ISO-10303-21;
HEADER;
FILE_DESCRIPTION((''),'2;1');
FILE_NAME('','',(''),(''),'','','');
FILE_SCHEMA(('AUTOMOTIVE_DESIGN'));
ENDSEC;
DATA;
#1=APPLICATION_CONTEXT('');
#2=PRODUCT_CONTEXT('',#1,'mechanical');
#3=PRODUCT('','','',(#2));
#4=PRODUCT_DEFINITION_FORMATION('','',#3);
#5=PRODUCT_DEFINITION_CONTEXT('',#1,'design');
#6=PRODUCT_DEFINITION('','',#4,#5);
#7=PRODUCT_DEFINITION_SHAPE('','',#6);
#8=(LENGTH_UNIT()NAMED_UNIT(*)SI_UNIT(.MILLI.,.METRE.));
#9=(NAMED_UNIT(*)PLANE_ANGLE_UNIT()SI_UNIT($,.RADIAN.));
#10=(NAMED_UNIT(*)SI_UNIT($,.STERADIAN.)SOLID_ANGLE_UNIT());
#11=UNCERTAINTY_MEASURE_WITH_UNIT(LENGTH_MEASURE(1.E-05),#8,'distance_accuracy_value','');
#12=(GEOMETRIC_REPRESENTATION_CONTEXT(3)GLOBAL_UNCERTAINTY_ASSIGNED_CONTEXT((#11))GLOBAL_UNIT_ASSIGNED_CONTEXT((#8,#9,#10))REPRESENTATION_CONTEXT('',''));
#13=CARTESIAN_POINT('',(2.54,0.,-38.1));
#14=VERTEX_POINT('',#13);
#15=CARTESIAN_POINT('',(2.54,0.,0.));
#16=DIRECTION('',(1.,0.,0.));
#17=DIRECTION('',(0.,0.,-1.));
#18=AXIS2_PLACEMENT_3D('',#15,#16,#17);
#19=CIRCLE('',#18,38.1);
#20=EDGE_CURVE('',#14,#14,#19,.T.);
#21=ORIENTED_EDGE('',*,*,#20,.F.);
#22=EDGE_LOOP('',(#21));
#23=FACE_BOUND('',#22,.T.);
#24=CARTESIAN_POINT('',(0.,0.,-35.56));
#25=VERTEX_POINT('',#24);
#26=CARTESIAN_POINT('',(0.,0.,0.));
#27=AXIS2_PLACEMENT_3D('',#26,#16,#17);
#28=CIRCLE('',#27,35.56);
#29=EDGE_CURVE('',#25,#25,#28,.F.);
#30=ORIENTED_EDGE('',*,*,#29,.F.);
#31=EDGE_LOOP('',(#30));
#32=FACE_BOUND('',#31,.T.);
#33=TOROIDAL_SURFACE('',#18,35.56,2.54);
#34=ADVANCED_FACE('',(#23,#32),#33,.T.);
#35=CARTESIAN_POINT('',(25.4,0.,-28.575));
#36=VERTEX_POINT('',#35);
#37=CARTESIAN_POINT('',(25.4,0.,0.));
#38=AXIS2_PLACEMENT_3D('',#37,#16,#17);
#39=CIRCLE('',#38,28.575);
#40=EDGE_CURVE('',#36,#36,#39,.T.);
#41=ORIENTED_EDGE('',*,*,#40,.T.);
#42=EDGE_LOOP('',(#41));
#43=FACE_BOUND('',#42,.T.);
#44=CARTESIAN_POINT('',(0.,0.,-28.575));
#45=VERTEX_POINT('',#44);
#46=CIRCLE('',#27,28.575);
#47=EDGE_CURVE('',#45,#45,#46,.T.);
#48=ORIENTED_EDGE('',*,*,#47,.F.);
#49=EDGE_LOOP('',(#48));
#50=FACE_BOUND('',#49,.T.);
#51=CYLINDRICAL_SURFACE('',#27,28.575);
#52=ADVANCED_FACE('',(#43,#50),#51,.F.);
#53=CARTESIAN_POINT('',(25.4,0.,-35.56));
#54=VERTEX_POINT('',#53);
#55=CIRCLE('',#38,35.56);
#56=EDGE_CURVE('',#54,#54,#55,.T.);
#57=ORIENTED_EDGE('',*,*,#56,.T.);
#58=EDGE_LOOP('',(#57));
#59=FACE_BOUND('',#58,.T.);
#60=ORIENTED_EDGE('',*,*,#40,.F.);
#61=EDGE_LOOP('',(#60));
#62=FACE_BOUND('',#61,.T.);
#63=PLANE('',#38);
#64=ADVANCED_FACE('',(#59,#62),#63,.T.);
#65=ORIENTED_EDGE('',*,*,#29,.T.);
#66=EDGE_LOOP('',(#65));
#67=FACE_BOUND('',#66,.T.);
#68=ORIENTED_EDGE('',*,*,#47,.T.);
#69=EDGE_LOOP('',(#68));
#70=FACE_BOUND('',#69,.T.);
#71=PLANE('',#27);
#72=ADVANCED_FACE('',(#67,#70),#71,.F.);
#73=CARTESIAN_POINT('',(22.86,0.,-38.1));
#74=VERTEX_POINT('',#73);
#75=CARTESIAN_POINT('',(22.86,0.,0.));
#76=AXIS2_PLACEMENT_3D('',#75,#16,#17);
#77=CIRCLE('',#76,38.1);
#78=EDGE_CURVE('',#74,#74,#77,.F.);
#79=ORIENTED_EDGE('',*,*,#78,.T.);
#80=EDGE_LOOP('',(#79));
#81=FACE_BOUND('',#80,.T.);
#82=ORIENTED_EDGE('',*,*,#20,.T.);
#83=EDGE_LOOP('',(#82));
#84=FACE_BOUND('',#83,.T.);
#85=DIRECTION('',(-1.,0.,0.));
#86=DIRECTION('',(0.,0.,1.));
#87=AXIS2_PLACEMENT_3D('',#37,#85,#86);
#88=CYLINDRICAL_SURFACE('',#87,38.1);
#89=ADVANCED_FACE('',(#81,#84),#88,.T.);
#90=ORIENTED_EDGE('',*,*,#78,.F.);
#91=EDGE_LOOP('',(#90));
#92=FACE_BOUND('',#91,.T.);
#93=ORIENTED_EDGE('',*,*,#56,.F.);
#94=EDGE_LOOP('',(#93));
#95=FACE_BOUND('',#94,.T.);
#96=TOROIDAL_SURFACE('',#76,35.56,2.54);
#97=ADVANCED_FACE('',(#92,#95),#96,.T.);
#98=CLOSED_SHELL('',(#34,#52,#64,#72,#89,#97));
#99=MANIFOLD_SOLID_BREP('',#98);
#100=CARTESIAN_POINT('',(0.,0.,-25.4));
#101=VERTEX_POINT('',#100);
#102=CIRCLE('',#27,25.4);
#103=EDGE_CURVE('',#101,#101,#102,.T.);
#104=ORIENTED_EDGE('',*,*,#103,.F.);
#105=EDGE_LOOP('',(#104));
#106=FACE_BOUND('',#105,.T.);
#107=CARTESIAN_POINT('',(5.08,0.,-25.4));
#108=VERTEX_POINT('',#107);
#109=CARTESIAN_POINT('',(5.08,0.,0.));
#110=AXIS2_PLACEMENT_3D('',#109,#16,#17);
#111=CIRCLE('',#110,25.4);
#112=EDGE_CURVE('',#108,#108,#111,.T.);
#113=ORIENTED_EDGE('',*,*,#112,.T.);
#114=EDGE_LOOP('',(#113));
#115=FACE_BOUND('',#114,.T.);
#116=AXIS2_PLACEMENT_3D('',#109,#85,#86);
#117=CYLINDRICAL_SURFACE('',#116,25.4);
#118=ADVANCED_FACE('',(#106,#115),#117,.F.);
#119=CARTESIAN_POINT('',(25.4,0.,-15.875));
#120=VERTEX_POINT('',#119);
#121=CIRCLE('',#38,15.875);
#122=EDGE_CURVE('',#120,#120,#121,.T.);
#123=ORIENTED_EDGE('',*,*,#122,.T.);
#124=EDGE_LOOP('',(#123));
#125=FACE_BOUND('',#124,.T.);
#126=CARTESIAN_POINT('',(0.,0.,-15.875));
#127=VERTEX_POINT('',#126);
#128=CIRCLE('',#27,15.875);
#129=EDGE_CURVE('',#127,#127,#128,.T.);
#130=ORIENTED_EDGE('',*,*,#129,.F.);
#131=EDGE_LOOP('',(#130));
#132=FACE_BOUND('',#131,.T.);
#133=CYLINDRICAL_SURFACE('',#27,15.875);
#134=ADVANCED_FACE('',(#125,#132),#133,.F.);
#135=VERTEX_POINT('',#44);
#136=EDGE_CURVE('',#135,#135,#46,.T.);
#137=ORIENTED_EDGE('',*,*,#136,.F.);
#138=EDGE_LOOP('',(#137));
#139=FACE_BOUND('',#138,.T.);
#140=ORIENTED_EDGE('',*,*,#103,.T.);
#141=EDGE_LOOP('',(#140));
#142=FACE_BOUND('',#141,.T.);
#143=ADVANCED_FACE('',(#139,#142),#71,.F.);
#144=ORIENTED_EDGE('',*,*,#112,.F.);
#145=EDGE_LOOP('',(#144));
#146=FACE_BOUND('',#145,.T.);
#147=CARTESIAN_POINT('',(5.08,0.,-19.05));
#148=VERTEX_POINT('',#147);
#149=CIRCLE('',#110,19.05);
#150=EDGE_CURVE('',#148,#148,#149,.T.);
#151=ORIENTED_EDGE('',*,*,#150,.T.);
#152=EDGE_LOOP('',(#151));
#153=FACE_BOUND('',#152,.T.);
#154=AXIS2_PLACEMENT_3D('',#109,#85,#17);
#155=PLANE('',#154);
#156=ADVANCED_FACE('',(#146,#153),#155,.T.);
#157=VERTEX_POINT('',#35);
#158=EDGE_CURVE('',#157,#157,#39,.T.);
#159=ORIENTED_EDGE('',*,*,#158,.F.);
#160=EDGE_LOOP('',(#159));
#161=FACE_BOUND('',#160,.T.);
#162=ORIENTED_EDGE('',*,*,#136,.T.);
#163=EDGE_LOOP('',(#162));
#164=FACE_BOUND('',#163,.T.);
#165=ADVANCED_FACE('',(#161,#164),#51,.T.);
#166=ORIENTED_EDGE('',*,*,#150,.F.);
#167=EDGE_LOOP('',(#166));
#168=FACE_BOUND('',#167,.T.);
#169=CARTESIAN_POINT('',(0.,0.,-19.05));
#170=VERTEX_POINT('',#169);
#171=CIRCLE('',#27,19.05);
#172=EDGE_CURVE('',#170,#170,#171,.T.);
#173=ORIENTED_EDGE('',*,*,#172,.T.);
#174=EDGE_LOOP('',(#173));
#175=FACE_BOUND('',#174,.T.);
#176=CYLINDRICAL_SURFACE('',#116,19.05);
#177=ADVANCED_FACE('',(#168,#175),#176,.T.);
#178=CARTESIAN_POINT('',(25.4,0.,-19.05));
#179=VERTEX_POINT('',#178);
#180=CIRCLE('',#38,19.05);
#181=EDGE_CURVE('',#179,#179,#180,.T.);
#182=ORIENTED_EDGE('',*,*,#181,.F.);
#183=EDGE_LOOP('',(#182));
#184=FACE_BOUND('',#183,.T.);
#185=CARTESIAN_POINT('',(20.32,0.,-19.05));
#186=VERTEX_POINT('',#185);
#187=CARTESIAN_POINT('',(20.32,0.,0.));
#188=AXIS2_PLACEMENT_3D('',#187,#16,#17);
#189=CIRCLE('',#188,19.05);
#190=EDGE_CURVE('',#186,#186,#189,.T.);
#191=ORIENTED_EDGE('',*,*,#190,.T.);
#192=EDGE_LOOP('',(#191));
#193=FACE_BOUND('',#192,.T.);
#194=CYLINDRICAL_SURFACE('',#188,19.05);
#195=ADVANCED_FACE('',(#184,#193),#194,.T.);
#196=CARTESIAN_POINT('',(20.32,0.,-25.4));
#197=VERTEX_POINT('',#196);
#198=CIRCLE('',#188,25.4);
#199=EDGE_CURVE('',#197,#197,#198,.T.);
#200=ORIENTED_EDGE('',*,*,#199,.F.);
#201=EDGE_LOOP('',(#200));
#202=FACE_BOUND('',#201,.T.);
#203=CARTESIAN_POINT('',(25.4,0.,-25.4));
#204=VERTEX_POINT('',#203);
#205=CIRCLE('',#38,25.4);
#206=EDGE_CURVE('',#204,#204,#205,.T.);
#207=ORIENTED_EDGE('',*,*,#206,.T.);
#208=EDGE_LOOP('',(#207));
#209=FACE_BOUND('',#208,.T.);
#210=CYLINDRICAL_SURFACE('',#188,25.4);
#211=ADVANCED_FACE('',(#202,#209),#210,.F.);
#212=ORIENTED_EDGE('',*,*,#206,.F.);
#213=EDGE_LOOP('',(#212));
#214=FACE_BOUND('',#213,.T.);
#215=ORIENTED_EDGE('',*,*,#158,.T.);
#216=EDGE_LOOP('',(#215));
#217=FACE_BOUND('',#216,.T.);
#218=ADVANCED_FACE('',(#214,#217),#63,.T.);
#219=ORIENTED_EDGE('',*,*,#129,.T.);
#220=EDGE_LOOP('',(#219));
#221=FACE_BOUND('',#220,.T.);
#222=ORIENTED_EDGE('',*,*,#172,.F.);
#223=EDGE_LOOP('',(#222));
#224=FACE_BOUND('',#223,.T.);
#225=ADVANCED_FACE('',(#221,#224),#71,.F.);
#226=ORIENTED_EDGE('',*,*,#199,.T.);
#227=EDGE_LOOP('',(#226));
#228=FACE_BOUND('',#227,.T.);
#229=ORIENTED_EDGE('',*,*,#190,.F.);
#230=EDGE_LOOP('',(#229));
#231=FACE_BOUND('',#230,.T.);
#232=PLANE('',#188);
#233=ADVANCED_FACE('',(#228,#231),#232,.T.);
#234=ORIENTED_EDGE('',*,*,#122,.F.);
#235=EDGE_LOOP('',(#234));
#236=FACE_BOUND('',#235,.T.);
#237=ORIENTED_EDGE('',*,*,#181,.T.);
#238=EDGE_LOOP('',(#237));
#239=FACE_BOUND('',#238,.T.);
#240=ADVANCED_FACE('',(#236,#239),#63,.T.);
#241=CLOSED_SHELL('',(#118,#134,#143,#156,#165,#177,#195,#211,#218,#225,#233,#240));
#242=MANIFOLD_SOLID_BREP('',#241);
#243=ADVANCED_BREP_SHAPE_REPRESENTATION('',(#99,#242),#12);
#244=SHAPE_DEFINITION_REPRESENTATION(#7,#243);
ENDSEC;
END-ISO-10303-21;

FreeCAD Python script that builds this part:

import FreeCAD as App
import Part
import Sketcher
Q = App.Units.Quantity


def edges_at(feature, points):
    """Names of the edges that pass closest to the given points."""
    edges = feature.Shape.Edges
    near = lambda p: min(range(len(edges)), key=lambda i: edges[i].distToShape(Part.Vertex(*p))[0])
    return sorted({f"Edge{near(p) + 1}" for p in points})

doc = App.newDocument("Part")
body = doc.addObject("PartDesign::Body", "Body")

# Sketch on YZ plane
sketch1 = body.newObject("Sketcher::SketchObject", "Sketch")
sketch1.AttachmentSupport = (doc.getObject("YZ_Plane"), [""])
sketch1.MapMode = "FlatFace"
sketch1.addGeometry(Part.Circle(App.Vector(0, 0, 0), App.Vector(0, 0, 1), 38.1), False)
sketch1.addConstraint([
    Sketcher.Constraint("Coincident", 0, 3, -1, 1),
    Sketcher.Constraint("Diameter", 0, Q("3 in")),
])
pad1 = body.newObject("PartDesign::Pad", "Pad")
pad1.Profile = sketch1
pad1.Length = Q("1 in")
doc.recompute()

fillet = body.newObject("PartDesign::Fillet", "Fillet")
fillet.Base = (pad1, edges_at(pad1, [(0, 0, 38.1), (25.4, 0, 38.1)]))
fillet.Radius = Q("0.1 in")

# Sketch on YZ plane
sketch2 = body.newObject("Sketcher::SketchObject", "Sketch001")
sketch2.AttachmentSupport = (doc.getObject("YZ_Plane"), [""])
sketch2.MapMode = "FlatFace"
sketch2.AttachmentOffset = App.Placement(App.Vector(0, 0, 1 * 25.4), App.Rotation())
sketch2.addGeometry(Part.Circle(App.Vector(0, 0, 0), App.Vector(0, 0, 1), 28.575), False)
sketch2.addConstraint([
    Sketcher.Constraint("Coincident", 0, 3, -1, 1),
    Sketcher.Constraint("Diameter", 0, Q("2.25 in")),
])
pocket1 = body.newObject("PartDesign::Pocket", "Pocket")
pocket1.Profile = sketch2
pocket1.Length = Q("1 in")
body2 = doc.addObject("PartDesign::Body", "Body001")

# Sketch on YZ plane
sketch3 = body2.newObject("Sketcher::SketchObject", "Sketch002")
sketch3.AttachmentSupport = (doc.getObject("YZ_Plane001"), [""])
sketch3.MapMode = "FlatFace"
sketch3.AttachmentOffset = App.Placement(App.Vector(0, 0, 1 * 25.4), App.Rotation())
sketch3.addGeometry(Part.Circle(App.Vector(0, 0, 0), App.Vector(0, 0, 1), 28.575), False)
sketch3.addConstraint([
    Sketcher.Constraint("Coincident", 0, 3, -1, 1),
    Sketcher.Constraint("Diameter", 0, Q("2.25 in")),
])
pad2 = body2.newObject("PartDesign::Pad", "Pad001")
pad2.Profile = sketch3
pad2.Length = Q("1 in")
pad2.Reversed = True

# Sketch on YZ plane
sketch4 = body2.newObject("Sketcher::SketchObject", "Sketch003")
sketch4.AttachmentSupport = (doc.getObject("YZ_Plane001"), [""])
sketch4.MapMode = "FlatFace"
sketch4.AttachmentOffset = App.Placement(App.Vector(0, 0, 1 * 25.4), App.Rotation())
sketch4.addGeometry([
    Part.Circle(App.Vector(0, 0, 0), App.Vector(0, 0, 1), 25.4),
    Part.Circle(App.Vector(0, 0, 0), App.Vector(0, 0, 1), 19.05),
], False)
sketch4.addConstraint([
    Sketcher.Constraint("Coincident", 0, 3, -1, 1),
    Sketcher.Constraint("Coincident", 1, 3, -1, 1),
    Sketcher.Constraint("Diameter", 0, Q("2 in")),
    Sketcher.Constraint("Diameter", 1, Q("1.5 in")),
])
pocket2 = body2.newObject("PartDesign::Pocket", "Pocket001")
pocket2.Profile = sketch4
pocket2.Length = Q("0.2 in")

# Sketch on YZ plane
sketch5 = body2.newObject("Sketcher::SketchObject", "Sketch004")
sketch5.AttachmentSupport = (doc.getObject("YZ_Plane001"), [""])
sketch5.MapMode = "FlatFace"
sketch5.AttachmentOffset = App.Placement(App.Vector(0, 0, 1 * 25.4), App.Rotation())
sketch5.addGeometry(Part.Circle(App.Vector(0, 0, 0), App.Vector(0, 0, 1), 15.875), False)
sketch5.addConstraint([
    Sketcher.Constraint("Coincident", 0, 3, -1, 1),
    Sketcher.Constraint("Diameter", 0, Q("1.25 in")),
])
pocket3 = body2.newObject("PartDesign::Pocket", "Pocket002")
pocket3.Profile = sketch5
pocket3.Length = Q("1 in")
doc.recompute()

datumplane = body2.newObject("PartDesign::Plane", "DatumPlane")
datumplane.AttachmentSupport = (doc.getObject("YZ_Plane001"), [""])
datumplane.MapMode = "FlatFace"
datumplane.AttachmentOffset = App.Placement(App.Vector(0, 0, 0.5 * 25.4), App.Rotation())
mirrored = body2.newObject("PartDesign::Mirrored", "Mirrored")
mirrored.Originals = [pocket2]
mirrored.MirrorPlane = (datumplane, [""])
body2.Tip = mirrored

doc.recompute()
